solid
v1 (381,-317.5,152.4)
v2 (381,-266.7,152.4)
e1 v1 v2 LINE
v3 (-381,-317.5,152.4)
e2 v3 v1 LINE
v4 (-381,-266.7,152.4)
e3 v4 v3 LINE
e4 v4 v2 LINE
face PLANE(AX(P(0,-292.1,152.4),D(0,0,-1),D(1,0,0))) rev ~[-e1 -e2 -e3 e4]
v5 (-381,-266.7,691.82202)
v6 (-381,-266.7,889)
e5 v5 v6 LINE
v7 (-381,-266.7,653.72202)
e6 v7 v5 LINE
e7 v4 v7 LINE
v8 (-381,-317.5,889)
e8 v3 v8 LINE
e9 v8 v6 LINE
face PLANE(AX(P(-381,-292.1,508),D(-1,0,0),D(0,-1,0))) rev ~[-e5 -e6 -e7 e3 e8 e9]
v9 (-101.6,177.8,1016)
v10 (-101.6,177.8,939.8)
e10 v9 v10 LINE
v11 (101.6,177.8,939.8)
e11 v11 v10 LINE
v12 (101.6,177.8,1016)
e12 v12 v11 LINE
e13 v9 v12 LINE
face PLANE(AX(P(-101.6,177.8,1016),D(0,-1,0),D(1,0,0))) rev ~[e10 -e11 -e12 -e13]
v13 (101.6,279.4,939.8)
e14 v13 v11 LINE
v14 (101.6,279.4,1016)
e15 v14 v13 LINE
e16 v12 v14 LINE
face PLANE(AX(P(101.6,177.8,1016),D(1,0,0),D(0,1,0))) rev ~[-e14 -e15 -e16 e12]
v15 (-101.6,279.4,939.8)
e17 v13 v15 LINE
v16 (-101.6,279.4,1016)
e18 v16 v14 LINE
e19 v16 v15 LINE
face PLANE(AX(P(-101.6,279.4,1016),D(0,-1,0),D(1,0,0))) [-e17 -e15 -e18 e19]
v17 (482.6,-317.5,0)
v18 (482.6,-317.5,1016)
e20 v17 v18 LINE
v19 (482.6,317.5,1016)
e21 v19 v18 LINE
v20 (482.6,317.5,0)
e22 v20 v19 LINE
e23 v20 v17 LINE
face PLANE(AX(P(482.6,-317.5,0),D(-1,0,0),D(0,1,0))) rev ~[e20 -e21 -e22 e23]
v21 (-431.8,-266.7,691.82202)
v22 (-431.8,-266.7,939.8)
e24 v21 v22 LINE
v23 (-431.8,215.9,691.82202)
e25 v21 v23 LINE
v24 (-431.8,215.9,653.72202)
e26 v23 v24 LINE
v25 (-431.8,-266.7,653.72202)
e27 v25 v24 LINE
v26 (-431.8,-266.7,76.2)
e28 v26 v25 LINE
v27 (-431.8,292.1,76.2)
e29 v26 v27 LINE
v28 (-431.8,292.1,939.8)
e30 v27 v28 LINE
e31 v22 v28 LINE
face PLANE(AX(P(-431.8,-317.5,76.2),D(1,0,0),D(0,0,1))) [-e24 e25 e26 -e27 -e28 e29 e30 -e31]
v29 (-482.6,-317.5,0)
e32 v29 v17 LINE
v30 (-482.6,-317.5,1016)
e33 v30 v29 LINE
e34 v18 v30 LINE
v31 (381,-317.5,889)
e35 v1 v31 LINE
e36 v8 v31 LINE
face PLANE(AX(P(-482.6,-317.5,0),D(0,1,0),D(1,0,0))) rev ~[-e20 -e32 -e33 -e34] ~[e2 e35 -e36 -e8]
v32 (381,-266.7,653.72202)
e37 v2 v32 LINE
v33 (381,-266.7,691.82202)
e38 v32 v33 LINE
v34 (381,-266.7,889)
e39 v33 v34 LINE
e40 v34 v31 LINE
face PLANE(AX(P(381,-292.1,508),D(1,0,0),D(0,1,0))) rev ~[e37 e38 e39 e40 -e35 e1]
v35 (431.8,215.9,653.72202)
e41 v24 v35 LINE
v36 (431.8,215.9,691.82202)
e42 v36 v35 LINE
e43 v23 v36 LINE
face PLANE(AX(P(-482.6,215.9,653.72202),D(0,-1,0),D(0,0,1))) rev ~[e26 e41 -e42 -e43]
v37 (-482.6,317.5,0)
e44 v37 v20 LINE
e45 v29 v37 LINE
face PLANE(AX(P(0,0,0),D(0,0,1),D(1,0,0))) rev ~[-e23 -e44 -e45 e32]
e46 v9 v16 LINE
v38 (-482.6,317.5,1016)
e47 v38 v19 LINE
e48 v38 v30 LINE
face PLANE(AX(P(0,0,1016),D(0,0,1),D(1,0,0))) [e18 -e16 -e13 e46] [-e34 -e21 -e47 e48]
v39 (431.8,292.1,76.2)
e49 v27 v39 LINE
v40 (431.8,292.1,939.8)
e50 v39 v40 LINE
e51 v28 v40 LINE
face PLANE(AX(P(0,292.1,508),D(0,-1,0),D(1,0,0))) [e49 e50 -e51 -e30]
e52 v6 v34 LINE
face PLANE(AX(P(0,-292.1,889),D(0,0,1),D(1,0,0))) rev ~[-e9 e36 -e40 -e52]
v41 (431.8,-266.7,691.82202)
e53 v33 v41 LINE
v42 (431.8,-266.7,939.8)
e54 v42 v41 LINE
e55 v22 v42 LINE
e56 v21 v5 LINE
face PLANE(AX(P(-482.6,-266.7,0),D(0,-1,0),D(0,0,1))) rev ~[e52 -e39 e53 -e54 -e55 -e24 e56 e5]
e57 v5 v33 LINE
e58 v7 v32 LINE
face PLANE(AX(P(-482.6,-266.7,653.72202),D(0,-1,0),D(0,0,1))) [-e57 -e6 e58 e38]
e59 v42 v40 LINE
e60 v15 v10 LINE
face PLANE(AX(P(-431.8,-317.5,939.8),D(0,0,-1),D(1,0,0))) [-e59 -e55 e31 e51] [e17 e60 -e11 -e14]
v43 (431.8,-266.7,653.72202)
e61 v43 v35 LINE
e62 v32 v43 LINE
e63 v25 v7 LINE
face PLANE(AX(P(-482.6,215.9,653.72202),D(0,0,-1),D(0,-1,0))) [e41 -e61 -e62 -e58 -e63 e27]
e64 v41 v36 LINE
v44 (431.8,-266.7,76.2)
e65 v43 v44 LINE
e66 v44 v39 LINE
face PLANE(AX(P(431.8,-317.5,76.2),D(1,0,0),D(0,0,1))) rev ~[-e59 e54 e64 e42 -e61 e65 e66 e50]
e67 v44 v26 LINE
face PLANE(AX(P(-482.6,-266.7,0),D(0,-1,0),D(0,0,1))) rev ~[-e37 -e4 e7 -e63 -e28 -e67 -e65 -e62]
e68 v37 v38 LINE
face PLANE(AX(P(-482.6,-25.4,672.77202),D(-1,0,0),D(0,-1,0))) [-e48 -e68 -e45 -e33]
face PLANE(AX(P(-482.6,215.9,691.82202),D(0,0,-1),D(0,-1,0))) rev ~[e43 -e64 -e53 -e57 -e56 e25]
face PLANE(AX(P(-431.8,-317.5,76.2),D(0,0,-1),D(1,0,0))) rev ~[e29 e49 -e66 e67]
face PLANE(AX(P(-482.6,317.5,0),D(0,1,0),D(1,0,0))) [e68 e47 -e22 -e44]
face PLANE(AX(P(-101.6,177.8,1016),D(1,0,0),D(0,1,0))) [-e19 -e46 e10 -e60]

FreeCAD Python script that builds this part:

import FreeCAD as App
import Part
import Sketcher
from FreeCAD import Vector
Q = App.Units.Quantity

doc = App.newDocument("Part")
body = doc.addObject("PartDesign::Body", "Body")

sketch1 = body.newObject("Sketcher::SketchObject", "Sketch")
sketch1.AttachmentSupport = (doc.getObject("XY_Plane"), [""])
sketch1.MapMode = "FlatFace"
sketch1.addGeometry(Part.LineSegment(Vector(-483, 318, 0), Vector(-483, -318, 0)), False)
sketch1.addGeometry(Part.LineSegment(Vector(-483, -318, 0), Vector(483, -318, 0)), False)
sketch1.addGeometry(Part.LineSegment(Vector(483, -318, 0), Vector(483, 318, 0)), False)
sketch1.addGeometry(Part.LineSegment(Vector(483, 318, 0), Vector(-483, 318, 0)), False)
sketch1.addConstraint(Sketcher.Constraint("Coincident", 0, 2, 1, 1))
sketch1.addConstraint(Sketcher.Constraint("Coincident", 1, 2, 2, 1))
sketch1.addConstraint(Sketcher.Constraint("Coincident", 2, 2, 3, 1))
sketch1.addConstraint(Sketcher.Constraint("Coincident", 3, 2, 0, 1))
sketch1.addConstraint(Sketcher.Constraint("Vertical", 0))
sketch1.addConstraint(Sketcher.Constraint("Horizontal", 1))
sketch1.addConstraint(Sketcher.Constraint("Vertical", 2))
sketch1.addConstraint(Sketcher.Constraint("Horizontal", 3))
sketch1.addConstraint(Sketcher.Constraint("Symmetric", 0, 2, 2, 2, -1, 1))
sketch1.addConstraint(Sketcher.Constraint("DistanceX", 1, 1, 1, 2, Q("38 in")))
sketch1.addConstraint(Sketcher.Constraint("DistanceY", 0, 2, 0, 1, Q("25 in")))
pad1 = body.newObject("PartDesign::Pad", "Pad")
pad1.Profile = sketch1
pad1.Length = Q("40 in")

sketch2 = body.newObject("Sketcher::SketchObject", "Sketch001")
sketch2.AttachmentSupport = (doc.getObject("XZ_Plane"), [""])
sketch2.MapMode = "FlatFace"
sketch2.AttachmentOffset = App.Placement(Vector(0, 0, 12.5 * 25.4), App.Rotation())
sketch2.addGeometry(Part.LineSegment(Vector(-432, 940, 0), Vector(-432, 76, 0)), False)
sketch2.addGeometry(Part.LineSegment(Vector(-432, 76, 0), Vector(432, 76, 0)), False)
sketch2.addGeometry(Part.LineSegment(Vector(432, 76, 0), Vector(432, 940, 0)), False)
sketch2.addGeometry(Part.LineSegment(Vector(432, 940, 0), Vector(-432, 940, 0)), False)
sketch2.addConstraint(Sketcher.Constraint("Coincident", 0, 2, 1, 1))
sketch2.addConstraint(Sketcher.Constraint("Coincident", 1, 2, 2, 1))
sketch2.addConstraint(Sketcher.Constraint("Coincident", 2, 2, 3, 1))
sketch2.addConstraint(Sketcher.Constraint("Coincident", 3, 2, 0, 1))
sketch2.addConstraint(Sketcher.Constraint("Vertical", 0))
sketch2.addConstraint(Sketcher.Constraint("Horizontal", 1))
sketch2.addConstraint(Sketcher.Constraint("Vertical", 2))
sketch2.addConstraint(Sketcher.Constraint("Horizontal", 3))
sketch2.addConstraint(Sketcher.Constraint("Equal", 3, 0))
sketch2.addConstraint(Sketcher.Constraint("DistanceX", 1, 1, 1, 2, Q("34 in")))
sketch2.addConstraint(Sketcher.Constraint("DistanceX", 0, 2, -1, 1, Q("17 in")))
sketch2.addConstraint(Sketcher.Constraint("DistanceY", -1, 1, 0, 2, Q("3 in")))
pocket1 = body.newObject("PartDesign::Pocket", "Pocket")
pocket1.Profile = sketch2
pocket1.Length = Q("24 in")

sketch3 = body.newObject("Sketcher::SketchObject", "Sketch002")
sketch3.AttachmentSupport = (doc.getObject("XY_Plane"), [""])
sketch3.MapMode = "FlatFace"
sketch3.AttachmentOffset = App.Placement(Vector(0, 0, 40 * 25.4), App.Rotation())
sketch3.addGeometry(Part.LineSegment(Vector(-102, 279, 0), Vector(-102, 178, 0)), False)
sketch3.addGeometry(Part.LineSegment(Vector(-102, 178, 0), Vector(102, 178, 0)), False)
sketch3.addGeometry(Part.LineSegment(Vector(102, 178, 0), Vector(102, 279, 0)), False)
sketch3.addGeometry(Part.LineSegment(Vector(102, 279, 0), Vector(-102, 279, 0)), False)
sketch3.addConstraint(Sketcher.Constraint("Coincident", 0, 2, 1, 1))
sketch3.addConstraint(Sketcher.Constraint("Coincident", 1, 2, 2, 1))
sketch3.addConstraint(Sketcher.Constraint("Coincident", 2, 2, 3, 1))
sketch3.addConstraint(Sketcher.Constraint("Coincident", 3, 2, 0, 1))
sketch3.addConstraint(Sketcher.Constraint("Vertical", 0))
sketch3.addConstraint(Sketcher.Constraint("Horizontal", 1))
sketch3.addConstraint(Sketcher.Constraint("Vertical", 2))
sketch3.addConstraint(Sketcher.Constraint("Horizontal", 3))
sketch3.addConstraint(Sketcher.Constraint("DistanceX", 1, 1, 1, 2, Q("8 in")))
sketch3.addConstraint(Sketcher.Constraint("DistanceY", 0, 2, 0, 1, Q("4 in")))
sketch3.addConstraint(Sketcher.Constraint("DistanceX", 0, 2, -1, 1, Q("4 in")))
sketch3.addConstraint(Sketcher.Constraint("DistanceY", -1, 1, 0, 2, Q("7 in")))
pocket2 = body.newObject("PartDesign::Pocket", "Pocket001")
pocket2.Profile = sketch3
pocket2.Length = Q("30 in")

sketch4 = body.newObject("Sketcher::SketchObject", "Sketch003")
sketch4.AttachmentSupport = (doc.getObject("YZ_Plane"), [""])
sketch4.MapMode = "FlatFace"
sketch4.AttachmentOffset = App.Placement(Vector(0, 0, -19 * 25.4), App.Rotation())
sketch4.addGeometry(Part.LineSegment(Vector(-267, 1016, 0), Vector(-267, 0, 0)), False)
sketch4.addGeometry(Part.LineSegment(Vector(-267, 0, 0), Vector(-318, 0, 0)), False)
sketch4.addGeometry(Part.LineSegment(Vector(-318, 0, 0), Vector(-318, 1016, 0)), False)
sketch4.addGeometry(Part.LineSegment(Vector(-318, 1016, 0), Vector(-267, 1016, 0)), False)
sketch4.addConstraint(Sketcher.Constraint("Coincident", 0, 2, 1, 1))
sketch4.addConstraint(Sketcher.Constraint("Coincident", 1, 2, 2, 1))
sketch4.addConstraint(Sketcher.Constraint("Coincident", 2, 2, 3, 1))
sketch4.addConstraint(Sketcher.Constraint("Coincident", 3, 2, 0, 1))
sketch4.addConstraint(Sketcher.Constraint("Vertical", 0))
sketch4.addConstraint(Sketcher.Constraint("Horizontal", 1))
sketch4.addConstraint(Sketcher.Constraint("Vertical", 2))
sketch4.addConstraint(Sketcher.Constraint("Horizontal", 3))
sketch4.addConstraint(Sketcher.Constraint("PointOnObject", 0, 2, -1))
sketch4.addConstraint(Sketcher.Constraint("DistanceX", 1, 2, 1, 1, Q("2 in")))
sketch4.addConstraint(Sketcher.Constraint("DistanceY", 0, 2, 0, 1, Q("40 in")))
sketch4.addConstraint(Sketcher.Constraint("DistanceX", 0, 2, -1, 1, Q("10.5 in")))
pad2 = body.newObject("PartDesign::Pad", "Pad001")
pad2.Profile = sketch4
pad2.Length = Q("4 in")

sketch5 = body.newObject("Sketcher::SketchObject", "Sketch004")
sketch5.AttachmentSupport = (doc.getObject("YZ_Plane"), [""])
sketch5.MapMode = "FlatFace"
sketch5.AttachmentOffset = App.Placement(Vector(0, 0, 19 * 25.4), App.Rotation())
sketch5.addGeometry(Part.LineSegment(Vector(-318, 1016, 0), Vector(-318, 0, 0)), False)
sketch5.addGeometry(Part.LineSegment(Vector(-318, 0, 0), Vector(-267, 0, 0)), False)
sketch5.addGeometry(Part.LineSegment(Vector(-267, 0, 0), Vector(-267, 1016, 0)), False)
sketch5.addGeometry(Part.LineSegment(Vector(-267, 1016, 0), Vector(-318, 1016, 0)), False)
sketch5.addConstraint(Sketcher.Constraint("Coincident", 0, 2, 1, 1))
sketch5.addConstraint(Sketcher.Constraint("Coincident", 1, 2, 2, 1))
sketch5.addConstraint(Sketcher.Constraint("Coincident", 2, 2, 3, 1))
sketch5.addConstraint(Sketcher.Constraint("Coincident", 3, 2, 0, 1))
sketch5.addConstraint(Sketcher.Constraint("Vertical", 0))
sketch5.addConstraint(Sketcher.Constraint("Horizontal", 1))
sketch5.addConstraint(Sketcher.Constraint("Vertical", 2))
sketch5.addConstraint(Sketcher.Constraint("Horizontal", 3))
sketch5.addConstraint(Sketcher.Constraint("PointOnObject", 0, 2, -1))
sketch5.addConstraint(Sketcher.Constraint("DistanceX", 1, 1, 1, 2, Q("2 in")))
sketch5.addConstraint(Sketcher.Constraint("DistanceY", 0, 2, 0, 1, Q("40 in")))
sketch5.addConstraint(Sketcher.Constraint("DistanceX", 0, 2, -1, 1, Q("12.5 in")))
pad3 = body.newObject("PartDesign::Pad", "Pad002")
pad3.Profile = sketch5
pad3.Length = Q("4 in")
pad3.Reversed = True

sketch6 = body.newObject("Sketcher::SketchObject", "Sketch005")
sketch6.AttachmentSupport = (doc.getObject("XY_Plane"), [""])
sketch6.MapMode = "FlatFace"
sketch6.addGeometry(Part.LineSegment(Vector(-483, -318, 0), Vector(-483, -267, 0)), False)
sketch6.addGeometry(Part.LineSegment(Vector(-483, -267, 0), Vector(483, -267, 0)), False)
sketch6.addGeometry(Part.LineSegment(Vector(483, -267, 0), Vector(483, -318, 0)), False)
sketch6.addGeometry(Part.LineSegment(Vector(483, -318, 0), Vector(-483, -318, 0)), False)
sketch6.addConstraint(Sketcher.Constraint("Coincident", 0, 2, 1, 1))
sketch6.addConstraint(Sketcher.Constraint("Coincident", 1, 2, 2, 1))
sketch6.addConstraint(Sketcher.Constraint("Coincident", 2, 2, 3, 1))
sketch6.addConstraint(Sketcher.Constraint("Coincident", 3, 2, 0, 1))
sketch6.addConstraint(Sketcher.Constraint("Vertical", 0))
sketch6.addConstraint(Sketcher.Constraint("Horizontal", 1))
sketch6.addConstraint(Sketcher.Constraint("Vertical", 2))
sketch6.addConstraint(Sketcher.Constraint("Horizontal", 3))
sketch6.addConstraint(Sketcher.Constraint("DistanceX", 1, 1, 1, 2, Q("38 in")))
sketch6.addConstraint(Sketcher.Constraint("DistanceY", 0, 1, 0, 2, Q("2 in")))
sketch6.addConstraint(Sketcher.Constraint("DistanceX", 0, 2, -1, 1, Q("19 in")))
sketch6.addConstraint(Sketcher.Constraint("DistanceY", 0, 2, -1, 1, Q("10.5 in")))
pad4 = body.newObject("PartDesign::Pad", "Pad003")
pad4.Profile = sketch6
pad4.Length = Q("6 in")

sketch7 = body.newObject("Sketcher::SketchObject", "Sketch006")
sketch7.AttachmentSupport = (doc.getObject("XY_Plane"), [""])
sketch7.MapMode = "FlatFace"
sketch7.AttachmentOffset = App.Placement(Vector(0, 0, 40 * 25.4), App.Rotation())
sketch7.addGeometry(Part.LineSegment(Vector(-483, -267, 0), Vector(-483, -318, 0)), False)
sketch7.addGeometry(Part.LineSegment(Vector(-483, -318, 0), Vector(483, -318, 0)), False)
sketch7.addGeometry(Part.LineSegment(Vector(483, -318, 0), Vector(483, -267, 0)), False)
sketch7.addGeometry(Part.LineSegment(Vector(483, -267, 0), Vector(-483, -267, 0)), False)
sketch7.addConstraint(Sketcher.Constraint("Coincident", 0, 2, 1, 1))
sketch7.addConstraint(Sketcher.Constraint("Coincident", 1, 2, 2, 1))
sketch7.addConstraint(Sketcher.Constraint("Coincident", 2, 2, 3, 1))
sketch7.addConstraint(Sketcher.Constraint("Coincident", 3, 2, 0, 1))
sketch7.addConstraint(Sketcher.Constraint("Vertical", 0))
sketch7.addConstraint(Sketcher.Constraint("Horizontal", 1))
sketch7.addConstraint(Sketcher.Constraint("Vertical", 2))
sketch7.addConstraint(Sketcher.Constraint("Horizontal", 3))
sketch7.addConstraint(Sketcher.Constraint("DistanceX", 1, 1, 1, 2, Q("38 in")))
sketch7.addConstraint(Sketcher.Constraint("DistanceY", 0, 2, 0, 1, Q("2 in")))
sketch7.addConstraint(Sketcher.Constraint("DistanceX", 0, 2, -1, 1, Q("19 in")))
sketch7.addConstraint(Sketcher.Constraint("DistanceY", 0, 2, -1, 1, Q("12.5 in")))
pad5 = body.newObject("PartDesign::Pad", "Pad004")
pad5.Profile = sketch7
pad5.Length = Q("5 in")
pad5.Reversed = True

sketch8 = body.newObject("Sketcher::SketchObject", "Sketch007")
sketch8.AttachmentSupport = (doc.getObject("YZ_Plane"), [""])
sketch8.MapMode = "FlatFace"
sketch8.AttachmentOffset = App.Placement(Vector(0, 0, -19 * 25.4), App.Rotation())
sketch8.addGeometry(Part.LineSegment(Vector(216, 692, 0), Vector(216, 654, 0)), False)
sketch8.addGeometry(Part.LineSegment(Vector(216, 654, 0), Vector(-267, 654, 0)), False)
sketch8.addGeometry(Part.LineSegment(Vector(-267, 654, 0), Vector(-267, 692, 0)), False)
sketch8.addGeometry(Part.LineSegment(Vector(-267, 692, 0), Vector(216, 692, 0)), False)
sketch8.addConstraint(Sketcher.Constraint("Coincident", 0, 2, 1, 1))
sketch8.addConstraint(Sketcher.Constraint("Coincident", 1, 2, 2, 1))
sketch8.addConstraint(Sketcher.Constraint("Coincident", 2, 2, 3, 1))
sketch8.addConstraint(Sketcher.Constraint("Coincident", 3, 2, 0, 1))
sketch8.addConstraint(Sketcher.Constraint("Vertical", 0))
sketch8.addConstraint(Sketcher.Constraint("Horizontal", 1))
sketch8.addConstraint(Sketcher.Constraint("Vertical", 2))
sketch8.addConstraint(Sketcher.Constraint("Horizontal", 3))
sketch8.addConstraint(Sketcher.Constraint("DistanceX", 1, 2, 1, 1, Q("19 in")))
sketch8.addConstraint(Sketcher.Constraint("DistanceY", 0, 2, 0, 1, Q("1.5 in")))
sketch8.addConstraint(Sketcher.Constraint("DistanceX", -1, 1, 0, 2, Q("8.5 in")))
sketch8.addConstraint(Sketcher.Constraint("DistanceY", -1, 1, 0, 2, Q("653.72202 mm")))
pad6 = body.newObject("PartDesign::Pad", "Pad005")
pad6.Profile = sketch8
pad6.Length = Q("38 in")

doc.recompute()
